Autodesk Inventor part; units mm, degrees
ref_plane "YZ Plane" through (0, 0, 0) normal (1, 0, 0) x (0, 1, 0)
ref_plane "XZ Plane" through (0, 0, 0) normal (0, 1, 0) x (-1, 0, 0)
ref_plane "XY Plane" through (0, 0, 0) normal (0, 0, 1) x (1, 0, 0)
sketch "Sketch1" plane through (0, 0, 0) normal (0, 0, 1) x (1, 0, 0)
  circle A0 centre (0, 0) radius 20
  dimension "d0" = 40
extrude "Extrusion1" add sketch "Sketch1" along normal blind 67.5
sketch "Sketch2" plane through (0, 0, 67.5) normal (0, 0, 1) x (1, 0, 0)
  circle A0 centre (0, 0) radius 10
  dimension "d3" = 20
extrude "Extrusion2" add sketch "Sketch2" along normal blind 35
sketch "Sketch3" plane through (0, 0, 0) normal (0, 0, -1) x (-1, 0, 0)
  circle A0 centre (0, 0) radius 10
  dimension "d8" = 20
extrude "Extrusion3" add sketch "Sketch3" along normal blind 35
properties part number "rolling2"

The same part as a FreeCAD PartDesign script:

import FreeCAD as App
import Part
import Sketcher
from FreeCAD import Vector

doc = App.newDocument("Part")
body = doc.addObject("PartDesign::Body", "Body")

# Sketch on XY plane
sketch1 = doc.addObject("Sketcher::SketchObject", "Sketch")
body.addObject(sketch1)
sketch1.AttachmentSupport = (doc.XY_Plane, [""])
sketch1.MapMode = "FlatFace"
sketch1.addGeometry(Part.Circle(Vector(0, 0, 0), Vector(0, 0, 1), 20), False)
sketch1.addConstraint([
    Sketcher.Constraint("Coincident", 0, 3, -1, 1),
    Sketcher.Constraint("Diameter", 0, 40.0),
])
pad1 = doc.addObject("PartDesign::Pad", "Pad")
body.addObject(pad1)
pad1.Profile = sketch1
pad1.Length = 67.5

# Sketch on XY plane
sketch2 = doc.addObject("Sketcher::SketchObject", "Sketch001")
body.addObject(sketch2)
sketch2.AttachmentSupport = (doc.XY_Plane, [""])
sketch2.MapMode = "FlatFace"
sketch2.AttachmentOffset = App.Placement(Vector(0, 0, 67.5), App.Rotation())
sketch2.addGeometry(Part.Circle(Vector(0, 0, 0), Vector(0, 0, 1), 10), False)
sketch2.addConstraint([
    Sketcher.Constraint("Coincident", 0, 3, -1, 1),
    Sketcher.Constraint("Diameter", 0, 20.0),
])
pad2 = doc.addObject("PartDesign::Pad", "Pad001")
body.addObject(pad2)
pad2.Profile = sketch2
pad2.Length = 35

# Sketch on XY plane
sketch3 = doc.addObject("Sketcher::SketchObject", "Sketch002")
body.addObject(sketch3)
sketch3.AttachmentSupport = (doc.XY_Plane, [""])
sketch3.MapMode = "FlatFace"
sketch3.addGeometry(Part.Circle(Vector(0, 0, 0), Vector(0, 0, 1), 10), False)
sketch3.addConstraint([
    Sketcher.Constraint("Coincident", 0, 3, -1, 1),
    Sketcher.Constraint("Diameter", 0, 20.0),
])
pad3 = doc.addObject("PartDesign::Pad", "Pad002")
body.addObject(pad3)
pad3.Profile = sketch3
pad3.Length = 35
pad3.Reversed = True

doc.recompute()
